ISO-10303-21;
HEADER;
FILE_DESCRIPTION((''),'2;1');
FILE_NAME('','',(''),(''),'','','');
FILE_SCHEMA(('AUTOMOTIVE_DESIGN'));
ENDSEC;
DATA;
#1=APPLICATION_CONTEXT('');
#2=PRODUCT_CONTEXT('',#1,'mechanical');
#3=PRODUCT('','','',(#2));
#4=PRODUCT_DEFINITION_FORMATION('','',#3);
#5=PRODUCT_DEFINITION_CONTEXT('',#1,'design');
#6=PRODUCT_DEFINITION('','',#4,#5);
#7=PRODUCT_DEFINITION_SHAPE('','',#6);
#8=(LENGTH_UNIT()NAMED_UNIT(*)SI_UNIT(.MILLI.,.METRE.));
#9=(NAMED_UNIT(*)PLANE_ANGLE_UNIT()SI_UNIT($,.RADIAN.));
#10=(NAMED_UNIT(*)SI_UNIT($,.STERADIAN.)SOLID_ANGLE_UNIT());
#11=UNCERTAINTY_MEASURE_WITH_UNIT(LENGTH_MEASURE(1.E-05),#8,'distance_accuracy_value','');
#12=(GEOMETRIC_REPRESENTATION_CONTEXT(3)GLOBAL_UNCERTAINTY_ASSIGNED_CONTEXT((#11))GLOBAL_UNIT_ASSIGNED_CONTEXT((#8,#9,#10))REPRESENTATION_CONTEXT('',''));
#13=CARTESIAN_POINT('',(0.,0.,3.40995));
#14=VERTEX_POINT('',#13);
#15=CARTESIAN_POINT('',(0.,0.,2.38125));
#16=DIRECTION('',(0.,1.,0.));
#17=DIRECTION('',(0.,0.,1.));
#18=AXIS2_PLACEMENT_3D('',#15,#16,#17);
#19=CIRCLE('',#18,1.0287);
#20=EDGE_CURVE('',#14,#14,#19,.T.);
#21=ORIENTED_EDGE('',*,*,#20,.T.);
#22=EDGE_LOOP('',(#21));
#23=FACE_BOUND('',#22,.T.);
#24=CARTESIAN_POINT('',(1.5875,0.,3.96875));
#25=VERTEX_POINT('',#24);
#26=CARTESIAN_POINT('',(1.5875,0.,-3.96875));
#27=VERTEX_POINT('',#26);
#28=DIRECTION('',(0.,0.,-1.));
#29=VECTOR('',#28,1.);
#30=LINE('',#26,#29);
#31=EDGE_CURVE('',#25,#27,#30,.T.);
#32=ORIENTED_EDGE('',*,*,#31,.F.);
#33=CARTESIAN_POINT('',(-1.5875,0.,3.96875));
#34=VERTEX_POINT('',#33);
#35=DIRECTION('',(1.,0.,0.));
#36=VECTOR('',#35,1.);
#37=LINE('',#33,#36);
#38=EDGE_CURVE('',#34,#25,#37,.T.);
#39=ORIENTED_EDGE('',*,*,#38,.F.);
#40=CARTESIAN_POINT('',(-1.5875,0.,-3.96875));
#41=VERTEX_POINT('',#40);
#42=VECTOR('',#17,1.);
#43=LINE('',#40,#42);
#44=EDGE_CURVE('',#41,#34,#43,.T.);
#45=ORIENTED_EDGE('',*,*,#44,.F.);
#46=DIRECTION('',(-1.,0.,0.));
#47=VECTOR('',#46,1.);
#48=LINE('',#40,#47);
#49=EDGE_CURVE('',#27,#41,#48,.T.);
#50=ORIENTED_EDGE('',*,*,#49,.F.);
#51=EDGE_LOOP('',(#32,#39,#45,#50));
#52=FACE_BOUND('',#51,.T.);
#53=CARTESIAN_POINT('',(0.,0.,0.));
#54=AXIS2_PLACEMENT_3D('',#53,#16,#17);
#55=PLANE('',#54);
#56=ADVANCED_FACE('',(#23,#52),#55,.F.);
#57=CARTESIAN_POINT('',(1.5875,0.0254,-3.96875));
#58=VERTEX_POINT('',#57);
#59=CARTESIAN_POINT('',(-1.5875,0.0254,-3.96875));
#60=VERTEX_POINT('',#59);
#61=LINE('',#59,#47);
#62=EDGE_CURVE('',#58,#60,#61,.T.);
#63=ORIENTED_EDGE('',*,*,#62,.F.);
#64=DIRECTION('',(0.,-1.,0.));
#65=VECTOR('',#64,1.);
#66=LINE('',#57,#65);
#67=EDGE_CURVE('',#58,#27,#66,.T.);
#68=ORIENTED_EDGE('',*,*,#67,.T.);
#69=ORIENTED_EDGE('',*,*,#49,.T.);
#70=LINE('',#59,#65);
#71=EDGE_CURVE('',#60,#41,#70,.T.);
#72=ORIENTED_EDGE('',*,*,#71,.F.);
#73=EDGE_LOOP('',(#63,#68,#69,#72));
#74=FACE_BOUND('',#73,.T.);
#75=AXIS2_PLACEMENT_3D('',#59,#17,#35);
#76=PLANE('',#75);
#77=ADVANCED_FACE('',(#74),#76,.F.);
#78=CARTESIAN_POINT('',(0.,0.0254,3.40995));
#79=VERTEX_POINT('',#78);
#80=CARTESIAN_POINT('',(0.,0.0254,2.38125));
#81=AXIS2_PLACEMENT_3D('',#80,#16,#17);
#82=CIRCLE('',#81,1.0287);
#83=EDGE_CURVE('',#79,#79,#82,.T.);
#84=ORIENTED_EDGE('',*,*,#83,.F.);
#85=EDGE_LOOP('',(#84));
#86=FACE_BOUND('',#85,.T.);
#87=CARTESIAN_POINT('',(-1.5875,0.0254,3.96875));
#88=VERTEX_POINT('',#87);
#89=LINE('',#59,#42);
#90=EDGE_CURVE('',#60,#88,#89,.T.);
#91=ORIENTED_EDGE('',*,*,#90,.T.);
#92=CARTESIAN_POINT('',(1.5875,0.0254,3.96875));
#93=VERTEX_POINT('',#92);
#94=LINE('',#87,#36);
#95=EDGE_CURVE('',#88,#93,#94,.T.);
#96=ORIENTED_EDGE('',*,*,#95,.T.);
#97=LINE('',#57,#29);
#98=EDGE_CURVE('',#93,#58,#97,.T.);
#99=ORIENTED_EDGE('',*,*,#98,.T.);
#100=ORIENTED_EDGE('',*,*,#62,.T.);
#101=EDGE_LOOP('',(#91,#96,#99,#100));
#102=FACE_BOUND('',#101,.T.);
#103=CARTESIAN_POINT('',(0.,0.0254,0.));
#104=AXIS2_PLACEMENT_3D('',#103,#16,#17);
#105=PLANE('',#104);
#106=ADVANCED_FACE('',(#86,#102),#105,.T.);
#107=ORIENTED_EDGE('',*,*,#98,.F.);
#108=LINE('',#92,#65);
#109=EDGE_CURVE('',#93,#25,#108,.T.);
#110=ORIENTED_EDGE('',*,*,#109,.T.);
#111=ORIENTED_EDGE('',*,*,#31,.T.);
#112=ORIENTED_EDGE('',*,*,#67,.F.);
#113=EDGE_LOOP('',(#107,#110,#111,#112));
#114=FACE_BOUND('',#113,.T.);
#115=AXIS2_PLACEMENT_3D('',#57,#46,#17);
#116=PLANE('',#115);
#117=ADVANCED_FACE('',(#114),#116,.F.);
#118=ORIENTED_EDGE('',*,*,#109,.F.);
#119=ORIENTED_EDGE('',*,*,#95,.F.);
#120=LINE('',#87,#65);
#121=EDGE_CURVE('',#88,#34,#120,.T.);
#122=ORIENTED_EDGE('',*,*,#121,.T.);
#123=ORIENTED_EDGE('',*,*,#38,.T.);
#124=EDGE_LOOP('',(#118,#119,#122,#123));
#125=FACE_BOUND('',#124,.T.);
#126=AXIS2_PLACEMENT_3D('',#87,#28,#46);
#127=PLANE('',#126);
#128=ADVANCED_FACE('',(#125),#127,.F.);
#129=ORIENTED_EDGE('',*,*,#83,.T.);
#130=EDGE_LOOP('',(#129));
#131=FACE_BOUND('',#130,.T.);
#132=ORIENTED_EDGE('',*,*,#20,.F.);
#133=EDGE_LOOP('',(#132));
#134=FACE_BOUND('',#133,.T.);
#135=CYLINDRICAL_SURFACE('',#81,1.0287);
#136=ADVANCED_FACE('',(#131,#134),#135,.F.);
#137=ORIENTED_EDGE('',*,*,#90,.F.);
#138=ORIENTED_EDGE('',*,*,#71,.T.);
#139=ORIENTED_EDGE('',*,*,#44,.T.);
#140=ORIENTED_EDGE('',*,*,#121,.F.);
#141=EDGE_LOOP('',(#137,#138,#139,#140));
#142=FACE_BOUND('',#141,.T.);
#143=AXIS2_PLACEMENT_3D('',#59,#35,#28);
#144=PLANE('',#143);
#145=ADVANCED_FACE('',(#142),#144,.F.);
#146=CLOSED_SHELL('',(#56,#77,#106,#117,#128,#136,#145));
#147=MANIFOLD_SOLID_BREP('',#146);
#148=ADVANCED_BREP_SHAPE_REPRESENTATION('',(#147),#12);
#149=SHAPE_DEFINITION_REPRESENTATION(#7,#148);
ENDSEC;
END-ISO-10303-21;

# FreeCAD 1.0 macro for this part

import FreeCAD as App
import Part
import Sketcher
from FreeCAD import Vector
Q = App.Units.Quantity


def add_polygon(sketch, points):
    """Adds a closed chain of lines whose ends are joined by coincident constraints."""
    first, n = sketch.GeometryCount, len(points)
    for a, b in zip(points, points[1:] + points[:1]):
        sketch.addGeometry(Part.LineSegment(App.Vector(*a, 0), App.Vector(*b, 0)), False)
    for i in range(n):
        sketch.addConstraint(Sketcher.Constraint("Coincident", first + i, 2, first + (i + 1) % n, 1))

doc = App.newDocument("Part")
body = doc.addObject("PartDesign::Body", "Body")

sketch1 = doc.addObject("Sketcher::SketchObject", "Sketch")
body.addObject(sketch1)
sketch1.AttachmentSupport = (doc.XZ_Plane, [""])
sketch1.MapMode = "FlatFace"
add_polygon(sketch1, [(-1.6, -4), (-1.6, 4), (1.6, 4), (1.6, -4)])
sketch1.addConstraint([
    Sketcher.Constraint("Vertical", 0),
    Sketcher.Constraint("Horizontal", 1),
    Sketcher.Constraint("Vertical", 2),
    Sketcher.Constraint("Horizontal", 3),
    Sketcher.Constraint("Symmetric", 0, 2, 2, 2, -1, 1),
    Sketcher.Constraint("DistanceX", 1, 1, 1, 2, Q("0.125 in")),
    Sketcher.Constraint("DistanceY", 0, 1, 0, 2, Q("0.3125 in")),
])
pad1 = doc.addObject("PartDesign::Pad", "Pad")
body.addObject(pad1)
pad1.Profile = sketch1
pad1.Length = Q("0.001 in")
pad1.Reversed = True

sketch2 = doc.addObject("Sketcher::SketchObject", "Sketch001")
body.addObject(sketch2)
sketch2.AttachmentSupport = (doc.XZ_Plane, [""])
sketch2.MapMode = "FlatFace"
sketch2.AttachmentOffset = App.Placement(Vector(0, 0, -0.001 * 25.4), App.Rotation())
sketch2.addGeometry(Part.Circle(Vector(0, 2.4, 0), Vector(0, 0, 1), 1), False)
sketch2.addConstraint([
    Sketcher.Constraint("PointOnObject", 0, 3, -2),
    Sketcher.Constraint("Diameter", 0, Q("0.081 in")),
    Sketcher.Constraint("DistanceY", -1, 1, 0, 3, Q("0.09375 in")),
])
doc.recompute()
hole = doc.addObject("PartDesign::Hole", "Hole")
body.addObject(hole)
hole.Profile = sketch2
hole.ThreadType = "None"
hole.Diameter = Q("0.081 in")
hole.DepthType = "ThroughAll"
hole.Reversed = True

doc.recompute()
